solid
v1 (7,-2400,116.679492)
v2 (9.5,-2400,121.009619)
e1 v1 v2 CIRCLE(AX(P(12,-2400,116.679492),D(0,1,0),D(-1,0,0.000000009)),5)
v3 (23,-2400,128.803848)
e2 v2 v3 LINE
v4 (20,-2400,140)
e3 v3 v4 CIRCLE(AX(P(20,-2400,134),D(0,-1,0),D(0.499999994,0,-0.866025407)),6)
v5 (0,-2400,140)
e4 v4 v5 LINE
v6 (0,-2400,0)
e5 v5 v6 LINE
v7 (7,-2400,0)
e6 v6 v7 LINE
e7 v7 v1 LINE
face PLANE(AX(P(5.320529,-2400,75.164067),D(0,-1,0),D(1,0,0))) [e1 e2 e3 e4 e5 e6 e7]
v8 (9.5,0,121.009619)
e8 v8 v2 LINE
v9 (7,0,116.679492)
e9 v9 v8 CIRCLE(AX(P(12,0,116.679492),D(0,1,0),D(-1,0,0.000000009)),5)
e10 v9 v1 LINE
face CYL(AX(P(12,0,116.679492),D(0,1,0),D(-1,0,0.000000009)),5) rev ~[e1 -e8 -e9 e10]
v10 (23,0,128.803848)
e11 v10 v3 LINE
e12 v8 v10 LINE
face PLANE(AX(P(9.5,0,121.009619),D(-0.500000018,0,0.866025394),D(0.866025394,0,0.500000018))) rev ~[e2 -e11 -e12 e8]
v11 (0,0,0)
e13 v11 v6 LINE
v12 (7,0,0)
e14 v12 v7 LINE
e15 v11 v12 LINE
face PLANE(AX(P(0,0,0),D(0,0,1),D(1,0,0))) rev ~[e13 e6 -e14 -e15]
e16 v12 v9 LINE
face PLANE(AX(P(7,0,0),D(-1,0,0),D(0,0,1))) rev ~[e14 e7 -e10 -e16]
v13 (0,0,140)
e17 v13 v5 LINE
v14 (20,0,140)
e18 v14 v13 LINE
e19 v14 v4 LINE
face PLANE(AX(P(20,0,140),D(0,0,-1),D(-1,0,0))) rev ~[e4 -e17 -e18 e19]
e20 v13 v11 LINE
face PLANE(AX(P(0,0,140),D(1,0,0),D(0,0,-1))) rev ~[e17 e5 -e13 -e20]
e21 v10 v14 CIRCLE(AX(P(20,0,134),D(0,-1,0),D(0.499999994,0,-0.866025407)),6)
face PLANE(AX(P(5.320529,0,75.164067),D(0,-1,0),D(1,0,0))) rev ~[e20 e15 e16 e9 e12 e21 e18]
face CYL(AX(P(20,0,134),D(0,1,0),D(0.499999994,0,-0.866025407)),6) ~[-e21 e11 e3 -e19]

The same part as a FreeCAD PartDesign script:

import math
import FreeCAD as App
import Part
import Sketcher
Q = App.Units.Quantity

doc = App.newDocument("Part")
params = doc.addObject("Spreadsheet::Sheet", "Params")
for row, (alias, value) in enumerate([
    ("sketch1_radius", "5 mm"),
    ("sketch1_radius2", "6 mm"),
    ("sketch1_width", "7 mm"),
    ("sketch1_width2", "20 mm"),
    ("sketch1_height", "140 mm"),
    ("pad1_length", "2400 mm"),
], start=1):
    params.set(f"A{row}", alias)
    params.set(f"B{row}", "=" + value)
    params.setAlias(f"B{row}", alias)

body = doc.addObject("PartDesign::Body", "Body")

sketch1 = body.newObject("Sketcher::SketchObject", "Sketch")
sketch1.AttachmentSupport = (doc.getObject("XZ_Plane"), [""])
sketch1.MapMode = "FlatFace"
sketch1.addGeometry(Part.LineSegment(App.Vector(0, 140, 0), App.Vector(0, 0, 0)), False)
sketch1.addGeometry(Part.LineSegment(App.Vector(0, 0, 0), App.Vector(7, 0, 0)), False)
sketch1.addGeometry(Part.LineSegment(App.Vector(7, 0, 0), App.Vector(7, 116.679492, 0)), False)
sketch1.addGeometry(Part.ArcOfCircle(Part.Circle(App.Vector(12, 116.679492, 0), App.Vector(0, 0, 1), 5), math.radians(120), math.radians(179.999999)), False)
sketch1.addGeometry(Part.LineSegment(App.Vector(9.5, 121.009619, 0), App.Vector(23, 128.803848, 0)), False)
sketch1.addGeometry(Part.ArcOfCircle(Part.Circle(App.Vector(20, 134, 0), App.Vector(0, 0, 1), 6), math.radians(-60), math.radians(90.000001)), False)
sketch1.addGeometry(Part.LineSegment(App.Vector(20, 140, 0), App.Vector(0, 140, 0)), False)
sketch1.addConstraint(Sketcher.Constraint("Coincident", 0, 2, 1, 1))
sketch1.addConstraint(Sketcher.Constraint("Coincident", 1, 2, 2, 1))
sketch1.addConstraint(Sketcher.Constraint("Tangent", 2, 2, 3, 2))
sketch1.addConstraint(Sketcher.Constraint("Tangent", 3, 1, 4, 1))
sketch1.addConstraint(Sketcher.Constraint("Tangent", 4, 2, 5, 1))
sketch1.addConstraint(Sketcher.Constraint("Tangent", 5, 2, 6, 1))
sketch1.addConstraint(Sketcher.Constraint("Coincident", 6, 2, 0, 1))
sketch1.addConstraint(Sketcher.Constraint("Vertical", 0))
sketch1.addConstraint(Sketcher.Constraint("Horizontal", 1))
sketch1.addConstraint(Sketcher.Constraint("Vertical", 2))
sketch1.addConstraint(Sketcher.Constraint("Horizontal", 6))
sketch1.addConstraint(Sketcher.Constraint("Coincident", 0, 2, -1, 1))
sketch1.addConstraint(Sketcher.Constraint("Radius", 3, Q("5 mm")))
sketch1.addConstraint(Sketcher.Constraint("Radius", 5, Q("6 mm")))
sketch1.addConstraint(Sketcher.Constraint("DistanceX", 1, 1, 1, 2, Q("7 mm")))
sketch1.addConstraint(Sketcher.Constraint("DistanceX", 6, 2, 6, 1, Q("20 mm")))
sketch1.addConstraint(Sketcher.Constraint("DistanceY", 0, 2, 0, 1, Q("140 mm")))
sketch1.addConstraint(Sketcher.Constraint("Angle", 4, Q("30.000001 deg")))
sketch1.setExpression("Constraints[12]", "Params.sketch1_radius")
sketch1.setExpression("Constraints[13]", "Params.sketch1_radius2")
sketch1.setExpression("Constraints[14]", "Params.sketch1_width")
sketch1.setExpression("Constraints[15]", "Params.sketch1_width2")
sketch1.setExpression("Constraints[16]", "Params.sketch1_height")
pad1 = body.newObject("PartDesign::Pad", "Pad")
pad1.Profile = sketch1
pad1.setExpression("Length", "Params.pad1_length")

doc.recompute()
